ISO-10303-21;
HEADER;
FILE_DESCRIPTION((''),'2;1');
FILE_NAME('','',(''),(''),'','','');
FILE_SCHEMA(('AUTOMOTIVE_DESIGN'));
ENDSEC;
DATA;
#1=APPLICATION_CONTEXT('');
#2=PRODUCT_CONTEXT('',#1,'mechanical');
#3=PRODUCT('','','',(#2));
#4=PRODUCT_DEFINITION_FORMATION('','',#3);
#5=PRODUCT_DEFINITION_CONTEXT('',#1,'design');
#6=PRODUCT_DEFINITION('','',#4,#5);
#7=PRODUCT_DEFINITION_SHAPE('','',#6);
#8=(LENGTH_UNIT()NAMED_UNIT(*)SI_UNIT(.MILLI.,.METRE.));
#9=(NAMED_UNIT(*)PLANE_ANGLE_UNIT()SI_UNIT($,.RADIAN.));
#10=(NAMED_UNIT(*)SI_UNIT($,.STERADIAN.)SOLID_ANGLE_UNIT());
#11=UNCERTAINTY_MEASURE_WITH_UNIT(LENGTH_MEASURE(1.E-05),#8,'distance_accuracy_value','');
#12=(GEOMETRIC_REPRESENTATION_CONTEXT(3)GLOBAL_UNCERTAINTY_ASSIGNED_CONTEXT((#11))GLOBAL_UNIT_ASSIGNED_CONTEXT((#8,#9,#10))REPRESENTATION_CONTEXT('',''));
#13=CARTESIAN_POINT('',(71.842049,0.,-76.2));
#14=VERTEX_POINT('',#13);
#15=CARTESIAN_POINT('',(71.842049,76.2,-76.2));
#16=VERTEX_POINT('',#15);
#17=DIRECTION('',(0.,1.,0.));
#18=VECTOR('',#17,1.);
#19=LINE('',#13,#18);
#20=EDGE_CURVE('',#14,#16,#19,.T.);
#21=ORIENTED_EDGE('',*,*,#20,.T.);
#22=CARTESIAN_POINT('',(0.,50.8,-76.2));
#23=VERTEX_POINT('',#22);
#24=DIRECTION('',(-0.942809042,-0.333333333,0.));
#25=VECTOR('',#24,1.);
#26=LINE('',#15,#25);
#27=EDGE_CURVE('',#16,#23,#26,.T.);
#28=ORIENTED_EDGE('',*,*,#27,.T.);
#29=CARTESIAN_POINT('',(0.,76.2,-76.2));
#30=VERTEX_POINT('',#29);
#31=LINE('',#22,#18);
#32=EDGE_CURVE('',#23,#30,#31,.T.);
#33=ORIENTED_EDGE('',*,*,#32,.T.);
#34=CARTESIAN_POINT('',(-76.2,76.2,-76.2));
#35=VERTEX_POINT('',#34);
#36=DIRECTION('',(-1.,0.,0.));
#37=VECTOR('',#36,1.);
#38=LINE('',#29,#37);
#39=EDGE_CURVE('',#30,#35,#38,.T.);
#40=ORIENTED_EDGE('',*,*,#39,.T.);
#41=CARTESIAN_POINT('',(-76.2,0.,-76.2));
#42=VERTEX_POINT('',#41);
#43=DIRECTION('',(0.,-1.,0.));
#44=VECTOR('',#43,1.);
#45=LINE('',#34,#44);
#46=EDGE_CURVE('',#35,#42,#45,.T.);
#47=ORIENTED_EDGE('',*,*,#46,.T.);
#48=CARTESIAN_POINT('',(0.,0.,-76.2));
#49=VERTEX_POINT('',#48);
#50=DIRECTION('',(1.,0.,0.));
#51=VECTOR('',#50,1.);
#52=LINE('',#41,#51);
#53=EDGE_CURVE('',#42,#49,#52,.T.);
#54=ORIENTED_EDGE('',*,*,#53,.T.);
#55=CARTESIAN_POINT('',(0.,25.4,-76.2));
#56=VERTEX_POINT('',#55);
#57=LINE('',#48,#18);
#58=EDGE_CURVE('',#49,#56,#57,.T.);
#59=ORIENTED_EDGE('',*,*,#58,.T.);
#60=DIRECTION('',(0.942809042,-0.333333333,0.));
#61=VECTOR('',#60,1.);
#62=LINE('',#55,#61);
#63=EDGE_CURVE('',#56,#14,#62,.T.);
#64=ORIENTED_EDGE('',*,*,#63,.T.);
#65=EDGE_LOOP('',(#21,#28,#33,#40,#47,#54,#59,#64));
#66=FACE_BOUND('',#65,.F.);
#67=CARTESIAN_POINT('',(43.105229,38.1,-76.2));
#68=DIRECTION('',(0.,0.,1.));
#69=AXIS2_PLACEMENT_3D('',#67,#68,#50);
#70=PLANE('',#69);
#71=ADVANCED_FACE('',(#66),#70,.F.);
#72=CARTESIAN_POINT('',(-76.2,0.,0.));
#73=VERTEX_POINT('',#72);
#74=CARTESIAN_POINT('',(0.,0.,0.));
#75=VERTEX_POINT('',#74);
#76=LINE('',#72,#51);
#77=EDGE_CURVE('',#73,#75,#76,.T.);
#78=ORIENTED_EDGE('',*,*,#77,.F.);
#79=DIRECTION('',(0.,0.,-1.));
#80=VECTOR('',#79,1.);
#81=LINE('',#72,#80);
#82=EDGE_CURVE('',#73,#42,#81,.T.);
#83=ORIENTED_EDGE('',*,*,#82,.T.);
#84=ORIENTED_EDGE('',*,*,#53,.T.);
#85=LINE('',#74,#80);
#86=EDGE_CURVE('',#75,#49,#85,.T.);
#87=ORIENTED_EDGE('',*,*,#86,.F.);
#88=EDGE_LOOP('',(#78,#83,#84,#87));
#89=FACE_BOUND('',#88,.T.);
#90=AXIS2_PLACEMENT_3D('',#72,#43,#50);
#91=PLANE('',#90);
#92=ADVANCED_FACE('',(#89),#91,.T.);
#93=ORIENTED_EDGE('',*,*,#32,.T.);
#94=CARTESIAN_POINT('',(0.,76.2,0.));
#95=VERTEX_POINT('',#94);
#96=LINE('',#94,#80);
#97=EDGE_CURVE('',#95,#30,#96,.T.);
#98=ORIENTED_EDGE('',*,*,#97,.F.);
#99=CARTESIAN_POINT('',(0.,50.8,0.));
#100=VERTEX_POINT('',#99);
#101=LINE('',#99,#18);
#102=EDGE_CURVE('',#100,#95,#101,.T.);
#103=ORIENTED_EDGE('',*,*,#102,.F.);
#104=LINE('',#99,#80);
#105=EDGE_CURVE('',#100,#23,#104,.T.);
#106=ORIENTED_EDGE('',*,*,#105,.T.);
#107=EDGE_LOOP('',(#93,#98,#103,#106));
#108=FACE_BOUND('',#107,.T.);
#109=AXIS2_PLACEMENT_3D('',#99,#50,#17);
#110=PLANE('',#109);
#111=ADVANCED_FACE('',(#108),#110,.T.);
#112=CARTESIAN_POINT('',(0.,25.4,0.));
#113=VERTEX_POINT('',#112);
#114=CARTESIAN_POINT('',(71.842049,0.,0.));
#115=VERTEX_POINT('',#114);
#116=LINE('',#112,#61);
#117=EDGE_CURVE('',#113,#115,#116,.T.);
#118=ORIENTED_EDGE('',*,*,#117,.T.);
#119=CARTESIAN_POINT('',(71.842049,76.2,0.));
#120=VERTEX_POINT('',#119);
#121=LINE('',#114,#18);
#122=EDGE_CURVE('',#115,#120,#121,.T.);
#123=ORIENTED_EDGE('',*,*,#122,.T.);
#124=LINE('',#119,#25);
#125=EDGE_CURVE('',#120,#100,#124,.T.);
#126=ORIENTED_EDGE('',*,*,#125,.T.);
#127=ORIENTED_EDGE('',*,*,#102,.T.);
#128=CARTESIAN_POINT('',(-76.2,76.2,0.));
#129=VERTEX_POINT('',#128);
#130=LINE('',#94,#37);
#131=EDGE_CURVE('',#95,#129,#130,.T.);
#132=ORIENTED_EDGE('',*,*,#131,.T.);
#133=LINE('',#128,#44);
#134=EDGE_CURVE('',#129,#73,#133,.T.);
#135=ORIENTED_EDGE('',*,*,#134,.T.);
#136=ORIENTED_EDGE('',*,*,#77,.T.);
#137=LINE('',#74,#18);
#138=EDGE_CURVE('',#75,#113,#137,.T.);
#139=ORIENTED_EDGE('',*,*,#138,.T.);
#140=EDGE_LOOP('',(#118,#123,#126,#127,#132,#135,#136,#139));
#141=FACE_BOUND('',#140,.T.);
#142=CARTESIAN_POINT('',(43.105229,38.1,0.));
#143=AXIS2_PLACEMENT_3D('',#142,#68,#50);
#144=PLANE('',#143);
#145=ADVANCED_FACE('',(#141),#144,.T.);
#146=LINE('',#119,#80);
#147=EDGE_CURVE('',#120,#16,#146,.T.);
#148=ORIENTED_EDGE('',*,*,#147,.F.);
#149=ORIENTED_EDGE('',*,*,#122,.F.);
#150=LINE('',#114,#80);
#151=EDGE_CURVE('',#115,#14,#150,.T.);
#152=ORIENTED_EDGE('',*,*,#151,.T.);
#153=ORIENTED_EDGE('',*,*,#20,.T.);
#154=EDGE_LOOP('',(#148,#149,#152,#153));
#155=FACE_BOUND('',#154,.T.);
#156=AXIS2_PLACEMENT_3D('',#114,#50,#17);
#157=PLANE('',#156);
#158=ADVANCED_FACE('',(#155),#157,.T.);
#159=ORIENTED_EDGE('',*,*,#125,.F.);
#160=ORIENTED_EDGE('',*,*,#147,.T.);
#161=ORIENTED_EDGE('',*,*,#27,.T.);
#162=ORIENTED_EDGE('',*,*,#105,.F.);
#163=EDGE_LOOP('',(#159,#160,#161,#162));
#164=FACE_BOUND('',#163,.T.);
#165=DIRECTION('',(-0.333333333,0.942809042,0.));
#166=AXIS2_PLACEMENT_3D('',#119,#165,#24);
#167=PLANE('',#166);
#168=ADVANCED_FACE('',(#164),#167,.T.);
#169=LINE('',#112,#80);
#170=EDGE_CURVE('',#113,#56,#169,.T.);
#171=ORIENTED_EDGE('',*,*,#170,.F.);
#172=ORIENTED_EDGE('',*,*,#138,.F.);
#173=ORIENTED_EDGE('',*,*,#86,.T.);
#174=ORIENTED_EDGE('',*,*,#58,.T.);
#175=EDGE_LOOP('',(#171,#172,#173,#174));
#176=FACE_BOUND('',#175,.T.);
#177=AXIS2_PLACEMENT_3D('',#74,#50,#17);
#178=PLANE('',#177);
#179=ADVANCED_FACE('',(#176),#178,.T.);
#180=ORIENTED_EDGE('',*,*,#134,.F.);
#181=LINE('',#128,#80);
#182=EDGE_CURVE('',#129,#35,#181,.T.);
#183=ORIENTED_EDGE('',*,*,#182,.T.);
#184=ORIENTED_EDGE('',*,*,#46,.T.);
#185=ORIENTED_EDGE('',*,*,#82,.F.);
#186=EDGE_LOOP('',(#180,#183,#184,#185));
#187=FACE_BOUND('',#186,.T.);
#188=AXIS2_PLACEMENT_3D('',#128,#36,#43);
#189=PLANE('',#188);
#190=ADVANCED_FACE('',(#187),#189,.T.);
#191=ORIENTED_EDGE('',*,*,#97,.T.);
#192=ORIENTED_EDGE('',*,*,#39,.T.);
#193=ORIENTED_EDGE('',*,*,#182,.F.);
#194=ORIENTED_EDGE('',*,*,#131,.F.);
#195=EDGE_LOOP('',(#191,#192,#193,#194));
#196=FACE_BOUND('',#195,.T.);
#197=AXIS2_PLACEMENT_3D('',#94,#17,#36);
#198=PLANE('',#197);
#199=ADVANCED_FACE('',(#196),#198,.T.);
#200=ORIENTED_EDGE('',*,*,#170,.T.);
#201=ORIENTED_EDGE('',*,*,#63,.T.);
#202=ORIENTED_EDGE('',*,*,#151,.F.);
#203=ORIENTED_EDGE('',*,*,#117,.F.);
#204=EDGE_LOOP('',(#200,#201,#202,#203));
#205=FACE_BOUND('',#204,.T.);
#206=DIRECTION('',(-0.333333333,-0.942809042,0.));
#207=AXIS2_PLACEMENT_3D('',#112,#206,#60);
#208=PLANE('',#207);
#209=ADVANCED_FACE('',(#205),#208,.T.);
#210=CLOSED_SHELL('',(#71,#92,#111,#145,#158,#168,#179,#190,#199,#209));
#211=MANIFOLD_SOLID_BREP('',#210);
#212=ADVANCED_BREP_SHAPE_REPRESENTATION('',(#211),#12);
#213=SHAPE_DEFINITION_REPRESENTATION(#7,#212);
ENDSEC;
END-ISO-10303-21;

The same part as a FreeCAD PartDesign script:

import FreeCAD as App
import Part
import Sketcher

V = App.Vector
Q = App.Units.Quantity


def add_polygon(sketch, points):
    """Adds a closed chain of lines whose ends are joined by coincident constraints."""
    first, n = sketch.GeometryCount, len(points)
    for a, b in zip(points, points[1:] + points[:1]):
        sketch.addGeometry(Part.LineSegment(App.Vector(*a, 0), App.Vector(*b, 0)), False)
    for i in range(n):
        sketch.addConstraint(Sketcher.Constraint("Coincident", first + i, 2, first + (i + 1) % n, 1))

doc = App.newDocument("Part")
body = doc.addObject("PartDesign::Body", "Body")

# Sketch on XY plane
sketch1 = body.newObject("Sketcher::SketchObject", "Sketch")
sketch1.AttachmentSupport = (doc.getObject("XY_Plane"), [""])
sketch1.MapMode = "FlatFace"
add_polygon(sketch1, [(71.842049, 76.2), (0, 50.8), (0, 76.2), (-76.2, 76.2), (-76.2, 0), (0, 0), (0, 25.4), (71.842049, 0)])  # lines 0-7
sketch1.addConstraint(Sketcher.Constraint("Vertical", 1))
sketch1.addConstraint(Sketcher.Constraint("Horizontal", 2))
sketch1.addConstraint(Sketcher.Constraint("Vertical", 3))
sketch1.addConstraint(Sketcher.Constraint("Horizontal", 4))
sketch1.addConstraint(Sketcher.Constraint("Vertical", 5))
sketch1.addConstraint(Sketcher.Constraint("Vertical", 7))
sketch1.addConstraint(Sketcher.Constraint("Coincident", 4, 2, -1, 1))
sketch1.addConstraint(Sketcher.Constraint("PointOnObject", 0, 2, -2))
sketch1.addConstraint(Sketcher.Constraint("PointOnObject", 6, 2, -1))
sketch1.addConstraint(Sketcher.Constraint("Horizontal", 2, 2, 7, 2))
sketch1.addConstraint(Sketcher.Constraint("Equal", 4, 3))
sketch1.addConstraint(Sketcher.Constraint("Equal", 1, 5))
sketch1.addConstraint(Sketcher.Constraint("DistanceX", 2, 2, 2, 1, Q("3 in")))
sketch1.addConstraint(Sketcher.Constraint("DistanceY", 1, 1, 1, 2, Q("1 in")))
sketch1.addConstraint(Sketcher.Constraint("Distance", 0, Q("3 in")))
pad1 = body.newObject("PartDesign::Pad", "Pad")
pad1.Profile = sketch1
pad1.Length = Q("3 in")
pad1.Reversed = True

doc.recompute()
